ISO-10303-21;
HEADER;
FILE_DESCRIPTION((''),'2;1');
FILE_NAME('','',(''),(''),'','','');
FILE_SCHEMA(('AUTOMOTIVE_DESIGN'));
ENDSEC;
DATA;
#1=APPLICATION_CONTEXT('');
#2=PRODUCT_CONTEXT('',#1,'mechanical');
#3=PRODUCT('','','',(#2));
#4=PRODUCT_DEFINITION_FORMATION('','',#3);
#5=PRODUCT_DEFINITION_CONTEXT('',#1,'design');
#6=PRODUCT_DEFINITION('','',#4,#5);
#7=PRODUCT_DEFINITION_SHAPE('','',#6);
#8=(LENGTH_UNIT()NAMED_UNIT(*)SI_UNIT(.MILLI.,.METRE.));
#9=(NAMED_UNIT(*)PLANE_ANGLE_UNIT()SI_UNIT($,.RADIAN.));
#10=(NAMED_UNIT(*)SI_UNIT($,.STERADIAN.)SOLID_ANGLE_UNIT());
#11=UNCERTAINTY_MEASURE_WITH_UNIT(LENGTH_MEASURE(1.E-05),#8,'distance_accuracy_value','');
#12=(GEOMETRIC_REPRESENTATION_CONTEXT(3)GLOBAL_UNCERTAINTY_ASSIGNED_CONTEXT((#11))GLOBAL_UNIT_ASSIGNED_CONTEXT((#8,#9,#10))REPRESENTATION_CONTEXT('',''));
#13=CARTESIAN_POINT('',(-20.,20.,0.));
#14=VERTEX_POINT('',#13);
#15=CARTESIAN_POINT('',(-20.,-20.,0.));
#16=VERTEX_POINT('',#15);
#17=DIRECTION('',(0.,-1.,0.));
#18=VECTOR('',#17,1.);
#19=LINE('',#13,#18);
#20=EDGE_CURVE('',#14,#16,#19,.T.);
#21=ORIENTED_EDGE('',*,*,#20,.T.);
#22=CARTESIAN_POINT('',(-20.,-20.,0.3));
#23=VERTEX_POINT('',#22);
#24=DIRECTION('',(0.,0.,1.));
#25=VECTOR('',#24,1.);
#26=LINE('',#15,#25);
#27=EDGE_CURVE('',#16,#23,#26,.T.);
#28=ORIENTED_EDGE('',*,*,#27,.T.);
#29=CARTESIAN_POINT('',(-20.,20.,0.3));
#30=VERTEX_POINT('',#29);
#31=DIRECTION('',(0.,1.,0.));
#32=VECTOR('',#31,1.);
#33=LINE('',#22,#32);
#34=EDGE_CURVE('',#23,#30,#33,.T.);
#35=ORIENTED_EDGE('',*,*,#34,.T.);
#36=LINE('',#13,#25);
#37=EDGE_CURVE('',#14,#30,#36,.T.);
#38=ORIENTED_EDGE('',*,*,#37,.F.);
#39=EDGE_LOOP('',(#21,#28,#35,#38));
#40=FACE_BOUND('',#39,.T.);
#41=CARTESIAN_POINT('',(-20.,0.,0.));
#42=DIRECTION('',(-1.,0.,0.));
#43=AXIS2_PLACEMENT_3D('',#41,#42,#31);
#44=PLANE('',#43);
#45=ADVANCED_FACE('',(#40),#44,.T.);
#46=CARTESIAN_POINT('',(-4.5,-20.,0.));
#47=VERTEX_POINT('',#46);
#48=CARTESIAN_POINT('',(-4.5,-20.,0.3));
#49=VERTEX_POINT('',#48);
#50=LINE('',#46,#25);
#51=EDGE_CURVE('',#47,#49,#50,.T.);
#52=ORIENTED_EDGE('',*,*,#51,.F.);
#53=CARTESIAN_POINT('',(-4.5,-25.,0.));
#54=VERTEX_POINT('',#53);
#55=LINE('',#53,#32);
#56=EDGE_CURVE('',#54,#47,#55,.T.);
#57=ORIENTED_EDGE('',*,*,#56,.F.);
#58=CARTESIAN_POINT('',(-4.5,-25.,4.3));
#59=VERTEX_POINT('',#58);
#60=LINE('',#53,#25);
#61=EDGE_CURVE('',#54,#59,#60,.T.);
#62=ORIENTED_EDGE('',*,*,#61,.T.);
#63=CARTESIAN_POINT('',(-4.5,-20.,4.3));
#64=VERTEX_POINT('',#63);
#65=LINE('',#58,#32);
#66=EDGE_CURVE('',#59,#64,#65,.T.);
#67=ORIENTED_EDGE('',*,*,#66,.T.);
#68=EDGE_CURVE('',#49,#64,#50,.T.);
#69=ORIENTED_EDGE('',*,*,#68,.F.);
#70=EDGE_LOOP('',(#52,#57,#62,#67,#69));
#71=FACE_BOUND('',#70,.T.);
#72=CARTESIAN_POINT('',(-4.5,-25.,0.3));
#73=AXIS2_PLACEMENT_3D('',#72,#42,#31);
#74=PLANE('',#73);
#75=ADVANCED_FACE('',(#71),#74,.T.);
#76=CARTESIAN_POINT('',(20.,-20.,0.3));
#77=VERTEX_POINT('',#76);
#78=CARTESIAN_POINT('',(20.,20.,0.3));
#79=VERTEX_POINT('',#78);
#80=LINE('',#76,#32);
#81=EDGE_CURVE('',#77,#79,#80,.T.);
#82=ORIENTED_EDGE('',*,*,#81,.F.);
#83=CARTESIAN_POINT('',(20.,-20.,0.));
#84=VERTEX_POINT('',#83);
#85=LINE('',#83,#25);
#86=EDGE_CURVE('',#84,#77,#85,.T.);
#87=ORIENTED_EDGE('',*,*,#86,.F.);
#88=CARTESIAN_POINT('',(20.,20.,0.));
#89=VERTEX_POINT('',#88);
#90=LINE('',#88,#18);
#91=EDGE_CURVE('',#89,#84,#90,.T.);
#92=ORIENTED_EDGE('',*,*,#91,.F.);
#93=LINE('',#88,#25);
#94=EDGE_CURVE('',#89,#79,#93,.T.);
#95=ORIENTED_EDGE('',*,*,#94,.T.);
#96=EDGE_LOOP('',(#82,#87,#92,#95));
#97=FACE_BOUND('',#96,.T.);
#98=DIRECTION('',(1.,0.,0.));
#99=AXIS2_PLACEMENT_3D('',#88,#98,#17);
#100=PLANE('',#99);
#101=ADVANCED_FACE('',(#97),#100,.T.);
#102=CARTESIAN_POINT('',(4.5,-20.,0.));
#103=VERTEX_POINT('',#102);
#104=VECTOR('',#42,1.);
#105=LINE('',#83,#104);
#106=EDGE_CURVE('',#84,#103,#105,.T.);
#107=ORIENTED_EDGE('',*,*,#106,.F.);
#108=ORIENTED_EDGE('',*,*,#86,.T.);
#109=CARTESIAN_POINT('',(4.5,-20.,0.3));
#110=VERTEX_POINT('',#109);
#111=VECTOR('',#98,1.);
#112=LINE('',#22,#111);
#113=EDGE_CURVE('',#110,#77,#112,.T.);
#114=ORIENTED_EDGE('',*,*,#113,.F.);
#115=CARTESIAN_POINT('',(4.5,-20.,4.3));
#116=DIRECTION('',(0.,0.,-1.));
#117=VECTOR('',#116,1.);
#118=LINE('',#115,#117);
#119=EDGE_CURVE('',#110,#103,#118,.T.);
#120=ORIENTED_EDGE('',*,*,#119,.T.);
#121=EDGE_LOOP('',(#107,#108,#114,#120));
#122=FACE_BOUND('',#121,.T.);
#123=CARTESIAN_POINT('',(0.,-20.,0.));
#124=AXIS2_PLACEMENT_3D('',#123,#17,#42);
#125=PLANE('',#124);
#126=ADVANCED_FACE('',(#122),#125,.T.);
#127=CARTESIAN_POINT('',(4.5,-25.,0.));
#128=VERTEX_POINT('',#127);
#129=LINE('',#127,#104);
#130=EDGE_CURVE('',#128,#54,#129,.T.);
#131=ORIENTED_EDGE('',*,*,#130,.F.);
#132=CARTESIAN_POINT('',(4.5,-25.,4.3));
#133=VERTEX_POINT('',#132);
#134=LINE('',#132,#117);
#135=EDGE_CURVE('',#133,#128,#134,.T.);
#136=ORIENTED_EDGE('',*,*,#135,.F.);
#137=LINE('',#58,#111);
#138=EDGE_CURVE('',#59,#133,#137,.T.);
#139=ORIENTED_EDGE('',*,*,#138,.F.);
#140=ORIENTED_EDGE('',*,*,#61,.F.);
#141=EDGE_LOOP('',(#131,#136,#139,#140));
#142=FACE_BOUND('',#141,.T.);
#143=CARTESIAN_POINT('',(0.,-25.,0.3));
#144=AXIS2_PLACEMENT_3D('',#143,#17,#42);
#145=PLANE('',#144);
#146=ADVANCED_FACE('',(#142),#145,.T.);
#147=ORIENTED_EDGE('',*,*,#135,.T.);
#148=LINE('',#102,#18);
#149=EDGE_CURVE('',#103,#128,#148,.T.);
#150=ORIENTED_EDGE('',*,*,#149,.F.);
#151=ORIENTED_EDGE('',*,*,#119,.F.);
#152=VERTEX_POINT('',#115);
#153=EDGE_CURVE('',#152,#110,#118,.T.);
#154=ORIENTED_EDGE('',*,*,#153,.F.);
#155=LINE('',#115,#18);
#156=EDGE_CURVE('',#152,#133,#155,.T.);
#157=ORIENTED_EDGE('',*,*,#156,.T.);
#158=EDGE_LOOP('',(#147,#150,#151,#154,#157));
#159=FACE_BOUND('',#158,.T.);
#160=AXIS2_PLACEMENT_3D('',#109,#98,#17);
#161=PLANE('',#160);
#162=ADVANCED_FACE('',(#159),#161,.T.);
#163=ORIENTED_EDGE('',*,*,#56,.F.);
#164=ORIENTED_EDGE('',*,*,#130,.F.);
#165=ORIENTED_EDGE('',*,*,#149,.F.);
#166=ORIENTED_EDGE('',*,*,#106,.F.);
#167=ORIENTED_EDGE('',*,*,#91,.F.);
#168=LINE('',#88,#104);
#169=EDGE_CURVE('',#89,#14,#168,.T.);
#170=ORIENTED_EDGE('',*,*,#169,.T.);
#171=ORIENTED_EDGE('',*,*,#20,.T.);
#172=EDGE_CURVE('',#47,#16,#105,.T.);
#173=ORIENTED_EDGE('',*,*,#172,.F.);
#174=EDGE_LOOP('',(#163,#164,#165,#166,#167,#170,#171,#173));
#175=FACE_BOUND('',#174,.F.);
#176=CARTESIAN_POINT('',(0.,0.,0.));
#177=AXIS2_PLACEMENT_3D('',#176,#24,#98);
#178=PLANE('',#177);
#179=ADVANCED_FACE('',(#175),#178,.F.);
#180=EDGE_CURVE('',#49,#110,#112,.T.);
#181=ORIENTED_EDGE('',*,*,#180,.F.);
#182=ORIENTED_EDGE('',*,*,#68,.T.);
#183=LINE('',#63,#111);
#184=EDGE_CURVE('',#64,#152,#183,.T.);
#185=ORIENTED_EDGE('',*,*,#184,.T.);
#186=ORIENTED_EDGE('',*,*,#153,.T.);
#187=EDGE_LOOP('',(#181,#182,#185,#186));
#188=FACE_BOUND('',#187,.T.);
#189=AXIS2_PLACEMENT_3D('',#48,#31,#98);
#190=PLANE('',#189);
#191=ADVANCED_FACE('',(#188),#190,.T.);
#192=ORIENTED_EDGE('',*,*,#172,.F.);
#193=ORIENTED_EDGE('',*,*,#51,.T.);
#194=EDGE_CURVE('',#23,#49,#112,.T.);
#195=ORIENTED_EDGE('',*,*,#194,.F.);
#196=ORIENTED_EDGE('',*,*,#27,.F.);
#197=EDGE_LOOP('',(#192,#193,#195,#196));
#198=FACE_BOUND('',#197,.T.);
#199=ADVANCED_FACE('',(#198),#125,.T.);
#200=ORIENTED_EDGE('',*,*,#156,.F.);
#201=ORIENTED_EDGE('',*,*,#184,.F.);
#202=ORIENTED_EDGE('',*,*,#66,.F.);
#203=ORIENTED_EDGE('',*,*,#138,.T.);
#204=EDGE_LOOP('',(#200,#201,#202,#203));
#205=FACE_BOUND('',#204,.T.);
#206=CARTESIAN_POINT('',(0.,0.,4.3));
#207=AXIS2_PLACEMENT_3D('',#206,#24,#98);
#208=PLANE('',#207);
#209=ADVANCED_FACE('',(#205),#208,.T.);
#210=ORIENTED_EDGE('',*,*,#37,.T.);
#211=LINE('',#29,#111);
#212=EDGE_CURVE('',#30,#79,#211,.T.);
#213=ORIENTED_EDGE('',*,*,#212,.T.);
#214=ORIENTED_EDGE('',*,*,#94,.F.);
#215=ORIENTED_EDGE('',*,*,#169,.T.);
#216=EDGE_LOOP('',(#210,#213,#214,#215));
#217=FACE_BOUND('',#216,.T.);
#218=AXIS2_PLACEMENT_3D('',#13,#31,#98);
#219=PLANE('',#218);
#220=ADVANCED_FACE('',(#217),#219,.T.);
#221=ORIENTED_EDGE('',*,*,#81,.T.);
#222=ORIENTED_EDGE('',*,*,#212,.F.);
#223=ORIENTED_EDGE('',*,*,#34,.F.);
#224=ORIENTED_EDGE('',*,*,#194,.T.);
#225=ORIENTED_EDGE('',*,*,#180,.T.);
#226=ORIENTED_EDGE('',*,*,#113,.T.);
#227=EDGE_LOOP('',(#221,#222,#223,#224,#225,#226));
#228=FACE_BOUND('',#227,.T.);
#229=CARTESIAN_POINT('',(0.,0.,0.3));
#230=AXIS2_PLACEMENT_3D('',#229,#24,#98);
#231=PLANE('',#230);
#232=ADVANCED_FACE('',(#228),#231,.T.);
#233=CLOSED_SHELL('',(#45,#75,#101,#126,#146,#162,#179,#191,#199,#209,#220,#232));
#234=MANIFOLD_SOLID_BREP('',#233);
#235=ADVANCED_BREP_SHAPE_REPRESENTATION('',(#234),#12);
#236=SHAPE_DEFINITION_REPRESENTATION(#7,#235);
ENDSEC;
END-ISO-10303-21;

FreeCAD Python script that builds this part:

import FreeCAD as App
import Part
import Sketcher

doc = App.newDocument("Part")
body = doc.addObject("PartDesign::Body", "Body")

# Sketch on XY plane
sketch1 = body.newObject("Sketcher::SketchObject", "Sketch")
sketch1.AttachmentSupport = (doc.getObject("XY_Plane"), [""])
sketch1.MapMode = "FlatFace"
sketch1.addGeometry([
    Part.LineSegment(App.Vector(-20, 20, 0), App.Vector(-20, -20, 0)),
    Part.LineSegment(App.Vector(-20, -20, 0), App.Vector(20, -20, 0)),
    Part.LineSegment(App.Vector(20, -20, 0), App.Vector(20, 20, 0)),
    Part.LineSegment(App.Vector(20, 20, 0), App.Vector(-20, 20, 0)),
], False)
sketch1.addConstraint([
    Sketcher.Constraint("Coincident", 0, 2, 1, 1),
    Sketcher.Constraint("Coincident", 1, 2, 2, 1),
    Sketcher.Constraint("Coincident", 2, 2, 3, 1),
    Sketcher.Constraint("Coincident", 3, 2, 0, 1),
    Sketcher.Constraint("Vertical", 0),
    Sketcher.Constraint("Horizontal", 1),
    Sketcher.Constraint("Vertical", 2),
    Sketcher.Constraint("Horizontal", 3),
    Sketcher.Constraint("Symmetric", 0, 2, 2, 2, -1, 1),
    Sketcher.Constraint("Equal", 3, 0),
    Sketcher.Constraint("DistanceX", 1, 1, 1, 2, 40.0),
])
pad1 = body.newObject("PartDesign::Pad", "Pad")
pad1.Profile = sketch1
pad1.Length = 0.3

# Sketch on XY plane
sketch2 = body.newObject("Sketcher::SketchObject", "Sketch001")
sketch2.AttachmentSupport = (doc.getObject("XY_Plane"), [""])
sketch2.MapMode = "FlatFace"
sketch2.AttachmentOffset = App.Placement(App.Vector(0, 0, 0.3), App.Rotation())
sketch2.addGeometry([
    Part.LineSegment(App.Vector(-4, -20, 0), App.Vector(-4, -25, 0)),
    Part.LineSegment(App.Vector(-4, -25, 0), App.Vector(4, -25, 0)),
    Part.LineSegment(App.Vector(4, -25, 0), App.Vector(4, -20, 0)),
    Part.LineSegment(App.Vector(4, -20, 0), App.Vector(-4, -20, 0)),
], False)
sketch2.addConstraint([
    Sketcher.Constraint("Coincident", 0, 2, 1, 1),
    Sketcher.Constraint("Coincident", 1, 2, 2, 1),
    Sketcher.Constraint("Coincident", 2, 2, 3, 1),
    Sketcher.Constraint("Coincident", 3, 2, 0, 1),
    Sketcher.Constraint("Vertical", 0),
    Sketcher.Constraint("Horizontal", 1),
    Sketcher.Constraint("Vertical", 2),
    Sketcher.Constraint("Horizontal", 3),
    Sketcher.Constraint("DistanceX", 1, 1, 1, 2, 9.0),
    Sketcher.Constraint("DistanceY", 0, 2, 0, 1, 5.0),
    Sketcher.Constraint("DistanceY", 0, 2, -1, 1, 25.0),
    Sketcher.Constraint("DistanceX", 0, 2, -1, 1, 4.5),
])
pad2 = body.newObject("PartDesign::Pad", "Pad001")
pad2.Profile = sketch2
pad2.Type = "TwoLengths"
pad2.Length = 4
pad2.Length2 = 0.3

doc.recompute()
